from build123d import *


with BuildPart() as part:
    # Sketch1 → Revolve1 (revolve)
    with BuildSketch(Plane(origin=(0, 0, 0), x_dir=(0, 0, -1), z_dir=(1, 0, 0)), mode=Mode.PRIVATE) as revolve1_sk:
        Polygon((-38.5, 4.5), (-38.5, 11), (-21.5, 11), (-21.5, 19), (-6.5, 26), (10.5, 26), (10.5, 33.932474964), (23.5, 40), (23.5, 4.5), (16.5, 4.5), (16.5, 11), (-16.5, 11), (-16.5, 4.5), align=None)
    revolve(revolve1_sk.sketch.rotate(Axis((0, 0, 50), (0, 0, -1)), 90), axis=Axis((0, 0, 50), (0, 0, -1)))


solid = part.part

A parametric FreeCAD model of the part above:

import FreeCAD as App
import Part
import Sketcher
Q = App.Units.Quantity


def add_polygon(sketch, points):
    """Adds a closed chain of lines whose ends are joined by coincident constraints."""
    first, n = sketch.GeometryCount, len(points)
    for a, b in zip(points, points[1:] + points[:1]):
        sketch.addGeometry(Part.LineSegment(App.Vector(*a, 0), App.Vector(*b, 0)), False)
    for i in range(n):
        sketch.addConstraint(Sketcher.Constraint("Coincident", first + i, 2, first + (i + 1) % n, 1))

doc = App.newDocument("Part")
body = doc.addObject("PartDesign::Body", "Body")

# Sketch on YZ plane
sketch1 = body.newObject("Sketcher::SketchObject", "Sketch")
sketch1.AttachmentSupport = (doc.getObject("YZ_Plane"), [""])
sketch1.MapMode = "FlatFace"
add_polygon(sketch1, [(11, 38.5), (4.5, 38.5), (4.5, 16.5), (11, 16.5), (11, -16.5), (4.5, -16.5), (4.5, -23.5), (40, -23.5), (33.932475, -10.5), (26, -10.5), (26, 6.5), (19, 21.5), (11, 21.5)])  # lines 0-12
sketch1.addConstraint([
    Sketcher.Constraint("Horizontal", 0),
    Sketcher.Constraint("Vertical", 1),
    Sketcher.Constraint("Horizontal", 2),
    Sketcher.Constraint("Vertical", 3),
    Sketcher.Constraint("Horizontal", 4),
    Sketcher.Constraint("Vertical", 5),
    Sketcher.Constraint("Horizontal", 6),
    Sketcher.Constraint("Horizontal", 8),
    Sketcher.Constraint("Vertical", 9),
    Sketcher.Constraint("Horizontal", 11),
    Sketcher.Constraint("Vertical", 12),
    Sketcher.Constraint("Symmetric", 1, 2, 4, 2, -1),
    Sketcher.Constraint("Vertical", 3, 2, 11, 2),
    Sketcher.Constraint("Equal", 9, 12),
    Sketcher.Constraint("DistanceX", 11, 2, 11, 1, 8.0),
    Sketcher.Constraint("DistanceY", 1, 2, 1, 1, 22.0),
    Sketcher.Constraint("DistanceY", 3, 2, 3, 1, 33.0),
    Sketcher.Constraint("DistanceY", 5, 2, 5, 1, 7.0),
    Sketcher.Constraint("DistanceY", 9, 1, 9, 2, 17.0),
    Sketcher.Constraint("DistanceX", 0, 2, 0, 1, 6.5),
    Sketcher.Constraint("DistanceX", 6, 1, 6, 2, 35.5),
    Sketcher.Constraint("DistanceX", -1, 1, 2, 2, 11.0),
    Sketcher.Constraint("DistanceX", -1, 1, 8, 2, 26.0),
    Sketcher.Constraint("DistanceY", 6, 2, 7, 2, 13.0),
    Sketcher.Constraint("Angle", 7, Q("115.02 deg")),
])
revolution = body.newObject("PartDesign::Revolution", "Revolution")
revolution.Profile = sketch1
revolution.ReferenceAxis = (sketch1, ["V_Axis"])
revolution.Angle = 360

doc.recompute()
